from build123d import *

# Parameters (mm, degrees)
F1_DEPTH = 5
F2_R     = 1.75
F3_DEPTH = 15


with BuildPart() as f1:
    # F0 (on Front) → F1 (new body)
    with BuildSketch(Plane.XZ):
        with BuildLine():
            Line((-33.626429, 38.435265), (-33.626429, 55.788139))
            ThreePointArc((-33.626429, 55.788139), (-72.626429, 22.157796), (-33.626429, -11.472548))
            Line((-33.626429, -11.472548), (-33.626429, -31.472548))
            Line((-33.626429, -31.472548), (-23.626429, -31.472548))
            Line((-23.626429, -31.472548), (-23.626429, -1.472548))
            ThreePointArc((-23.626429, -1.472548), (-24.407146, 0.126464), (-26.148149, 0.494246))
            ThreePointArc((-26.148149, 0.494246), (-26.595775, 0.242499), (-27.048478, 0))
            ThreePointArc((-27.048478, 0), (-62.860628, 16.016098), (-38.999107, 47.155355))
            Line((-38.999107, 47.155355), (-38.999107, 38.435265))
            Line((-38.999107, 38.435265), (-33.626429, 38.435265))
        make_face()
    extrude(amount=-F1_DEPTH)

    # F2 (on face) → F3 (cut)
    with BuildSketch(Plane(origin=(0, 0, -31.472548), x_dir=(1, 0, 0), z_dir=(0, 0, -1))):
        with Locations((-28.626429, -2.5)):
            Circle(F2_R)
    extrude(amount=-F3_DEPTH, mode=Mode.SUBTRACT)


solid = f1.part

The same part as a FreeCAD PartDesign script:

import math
import FreeCAD as App
import Part
import Sketcher
from FreeCAD import Vector
Q = App.Units.Quantity

doc = App.newDocument("Part")
body = doc.addObject("PartDesign::Body", "Body")

# Sketch on XZ plane
sketch1 = body.newObject("Sketcher::SketchObject", "Sketch")
sketch1.AttachmentSupport = (doc.getObject("XZ_Plane"), [""])
sketch1.MapMode = "FlatFace"
sketch1.addGeometry([
    Part.LineSegment(Vector(-33.6, 38.4, 0), Vector(-33.6, 55.8, 0)),  # 0
    Part.ArcOfCircle(Part.Circle(Vector(-38.6, 22.2, 0), Vector(0, 0, 1), 34), math.radians(82), math.radians(278)),  # 1
    Part.LineSegment(Vector(-33.6, -11.5, 0), Vector(-33.6, -31.5, 0)),  # 2
    Part.LineSegment(Vector(-33.6, -31.5, 0), Vector(-23.6, -31.5, 0)),  # 3
    Part.LineSegment(Vector(-23.6, -31.5, 0), Vector(-23.6, -1.5, 0)),  # 4
    Part.ArcOfCircle(Part.Circle(Vector(-25.7, -1.5, 0), Vector(0, 0, 1), 2), math.radians(0), math.radians(104)),  # 5
    Part.ArcOfCircle(Part.Circle(Vector(-38.6, 22.2, 0), Vector(0, 0, 1), 25), math.radians(-62.41), math.radians(-60.06)),  # 6
    Part.ArcOfCircle(Part.Circle(Vector(-38.6, 22.2, 0), Vector(0, 0, 1), 25), math.radians(91), math.radians(298)),  # 7
    Part.LineSegment(Vector(-39, 47.2, 0), Vector(-39, 38.4, 0)),  # 8
    Part.LineSegment(Vector(-39, 38.4, 0), Vector(-33.6, 38.4, 0)),  # 9
], False)
sketch1.addConstraint([
    Sketcher.Constraint("Coincident", 0, 2, 1, 1),
    Sketcher.Constraint("Coincident", 1, 2, 2, 1),
    Sketcher.Constraint("Coincident", 2, 2, 3, 1),
    Sketcher.Constraint("Coincident", 3, 2, 4, 1),
    Sketcher.Constraint("Tangent", 4, 2, 5, 1),
    Sketcher.Constraint("Coincident", 5, 2, 6, 2),
    Sketcher.Constraint("Tangent", 6, 1, 7, 2),
    Sketcher.Constraint("Coincident", 7, 1, 8, 1),
    Sketcher.Constraint("Coincident", 8, 2, 9, 1),
    Sketcher.Constraint("Coincident", 9, 2, 0, 1),
    Sketcher.Constraint("Vertical", 0),
    Sketcher.Constraint("Vertical", 2),
    Sketcher.Constraint("Horizontal", 3),
    Sketcher.Constraint("Vertical", 4),
    Sketcher.Constraint("Vertical", 8),
    Sketcher.Constraint("Horizontal", 9),
    Sketcher.Constraint("Coincident", 7, 3, 1, 3),
    Sketcher.Constraint("PointOnObject", 6, 1, -1),
    Sketcher.Constraint("Vertical", 0, 2, 1, 2),
    Sketcher.Constraint("Radius", 1, Q("34 mm")),
    Sketcher.Constraint("DistanceX", 3, 1, 3, 2, Q("10 mm")),
    Sketcher.Constraint("DistanceY", 2, 2, 2, 1, Q("20 mm")),
    Sketcher.Constraint("DistanceY", 4, 1, 4, 2, Q("30 mm")),
    Sketcher.Constraint("DistanceX", 7, 3, 0, 2, Q("5 mm")),
    Sketcher.Constraint("Radius", 5, Q("2.027852 mm")),
    Sketcher.Constraint("Radius", 6, Q("24.99971 mm")),
    Sketcher.Constraint("Radius", 7, Q("25.000337 mm")),
    Sketcher.Constraint("DistanceX", 9, 1, 9, 2, Q("5.372678 mm")),
    Sketcher.Constraint("DistanceY", 8, 2, 8, 1, Q("8.72009 mm")),
    Sketcher.Constraint("DistanceX", 1, 3, -1, 1, Q("38.626429 mm")),
    Sketcher.Constraint("DistanceY", -1, 1, 0, 2, Q("55.788139 mm")),
])
pad1 = body.newObject("PartDesign::Pad", "Pad")
pad1.Profile = sketch1
pad1.Length = 5
pad1.Reversed = True

# Sketch on XY plane
sketch2 = body.newObject("Sketcher::SketchObject", "Sketch001")
sketch2.AttachmentSupport = (doc.getObject("XY_Plane"), [""])
sketch2.MapMode = "FlatFace"
sketch2.AttachmentOffset = App.Placement(Vector(0, 0, -31.472548), App.Rotation())
sketch2.addGeometry(Part.Circle(Vector(-28.6, 2.5, 0), Vector(0, 0, 1), 1.8), False)
sketch2.addConstraint([
    Sketcher.Constraint("Diameter", 0, Q("3.5 mm")),
    Sketcher.Constraint("DistanceY", -1, 1, 0, 3, Q("2.5 mm")),
    Sketcher.Constraint("DistanceX", 0, 3, -1, 1, Q("28.626429 mm")),
])
pocket1 = body.newObject("PartDesign::Pocket", "Pocket")
pocket1.Profile = sketch2
pocket1.Length = 15
pocket1.Reversed = True

doc.recompute()
